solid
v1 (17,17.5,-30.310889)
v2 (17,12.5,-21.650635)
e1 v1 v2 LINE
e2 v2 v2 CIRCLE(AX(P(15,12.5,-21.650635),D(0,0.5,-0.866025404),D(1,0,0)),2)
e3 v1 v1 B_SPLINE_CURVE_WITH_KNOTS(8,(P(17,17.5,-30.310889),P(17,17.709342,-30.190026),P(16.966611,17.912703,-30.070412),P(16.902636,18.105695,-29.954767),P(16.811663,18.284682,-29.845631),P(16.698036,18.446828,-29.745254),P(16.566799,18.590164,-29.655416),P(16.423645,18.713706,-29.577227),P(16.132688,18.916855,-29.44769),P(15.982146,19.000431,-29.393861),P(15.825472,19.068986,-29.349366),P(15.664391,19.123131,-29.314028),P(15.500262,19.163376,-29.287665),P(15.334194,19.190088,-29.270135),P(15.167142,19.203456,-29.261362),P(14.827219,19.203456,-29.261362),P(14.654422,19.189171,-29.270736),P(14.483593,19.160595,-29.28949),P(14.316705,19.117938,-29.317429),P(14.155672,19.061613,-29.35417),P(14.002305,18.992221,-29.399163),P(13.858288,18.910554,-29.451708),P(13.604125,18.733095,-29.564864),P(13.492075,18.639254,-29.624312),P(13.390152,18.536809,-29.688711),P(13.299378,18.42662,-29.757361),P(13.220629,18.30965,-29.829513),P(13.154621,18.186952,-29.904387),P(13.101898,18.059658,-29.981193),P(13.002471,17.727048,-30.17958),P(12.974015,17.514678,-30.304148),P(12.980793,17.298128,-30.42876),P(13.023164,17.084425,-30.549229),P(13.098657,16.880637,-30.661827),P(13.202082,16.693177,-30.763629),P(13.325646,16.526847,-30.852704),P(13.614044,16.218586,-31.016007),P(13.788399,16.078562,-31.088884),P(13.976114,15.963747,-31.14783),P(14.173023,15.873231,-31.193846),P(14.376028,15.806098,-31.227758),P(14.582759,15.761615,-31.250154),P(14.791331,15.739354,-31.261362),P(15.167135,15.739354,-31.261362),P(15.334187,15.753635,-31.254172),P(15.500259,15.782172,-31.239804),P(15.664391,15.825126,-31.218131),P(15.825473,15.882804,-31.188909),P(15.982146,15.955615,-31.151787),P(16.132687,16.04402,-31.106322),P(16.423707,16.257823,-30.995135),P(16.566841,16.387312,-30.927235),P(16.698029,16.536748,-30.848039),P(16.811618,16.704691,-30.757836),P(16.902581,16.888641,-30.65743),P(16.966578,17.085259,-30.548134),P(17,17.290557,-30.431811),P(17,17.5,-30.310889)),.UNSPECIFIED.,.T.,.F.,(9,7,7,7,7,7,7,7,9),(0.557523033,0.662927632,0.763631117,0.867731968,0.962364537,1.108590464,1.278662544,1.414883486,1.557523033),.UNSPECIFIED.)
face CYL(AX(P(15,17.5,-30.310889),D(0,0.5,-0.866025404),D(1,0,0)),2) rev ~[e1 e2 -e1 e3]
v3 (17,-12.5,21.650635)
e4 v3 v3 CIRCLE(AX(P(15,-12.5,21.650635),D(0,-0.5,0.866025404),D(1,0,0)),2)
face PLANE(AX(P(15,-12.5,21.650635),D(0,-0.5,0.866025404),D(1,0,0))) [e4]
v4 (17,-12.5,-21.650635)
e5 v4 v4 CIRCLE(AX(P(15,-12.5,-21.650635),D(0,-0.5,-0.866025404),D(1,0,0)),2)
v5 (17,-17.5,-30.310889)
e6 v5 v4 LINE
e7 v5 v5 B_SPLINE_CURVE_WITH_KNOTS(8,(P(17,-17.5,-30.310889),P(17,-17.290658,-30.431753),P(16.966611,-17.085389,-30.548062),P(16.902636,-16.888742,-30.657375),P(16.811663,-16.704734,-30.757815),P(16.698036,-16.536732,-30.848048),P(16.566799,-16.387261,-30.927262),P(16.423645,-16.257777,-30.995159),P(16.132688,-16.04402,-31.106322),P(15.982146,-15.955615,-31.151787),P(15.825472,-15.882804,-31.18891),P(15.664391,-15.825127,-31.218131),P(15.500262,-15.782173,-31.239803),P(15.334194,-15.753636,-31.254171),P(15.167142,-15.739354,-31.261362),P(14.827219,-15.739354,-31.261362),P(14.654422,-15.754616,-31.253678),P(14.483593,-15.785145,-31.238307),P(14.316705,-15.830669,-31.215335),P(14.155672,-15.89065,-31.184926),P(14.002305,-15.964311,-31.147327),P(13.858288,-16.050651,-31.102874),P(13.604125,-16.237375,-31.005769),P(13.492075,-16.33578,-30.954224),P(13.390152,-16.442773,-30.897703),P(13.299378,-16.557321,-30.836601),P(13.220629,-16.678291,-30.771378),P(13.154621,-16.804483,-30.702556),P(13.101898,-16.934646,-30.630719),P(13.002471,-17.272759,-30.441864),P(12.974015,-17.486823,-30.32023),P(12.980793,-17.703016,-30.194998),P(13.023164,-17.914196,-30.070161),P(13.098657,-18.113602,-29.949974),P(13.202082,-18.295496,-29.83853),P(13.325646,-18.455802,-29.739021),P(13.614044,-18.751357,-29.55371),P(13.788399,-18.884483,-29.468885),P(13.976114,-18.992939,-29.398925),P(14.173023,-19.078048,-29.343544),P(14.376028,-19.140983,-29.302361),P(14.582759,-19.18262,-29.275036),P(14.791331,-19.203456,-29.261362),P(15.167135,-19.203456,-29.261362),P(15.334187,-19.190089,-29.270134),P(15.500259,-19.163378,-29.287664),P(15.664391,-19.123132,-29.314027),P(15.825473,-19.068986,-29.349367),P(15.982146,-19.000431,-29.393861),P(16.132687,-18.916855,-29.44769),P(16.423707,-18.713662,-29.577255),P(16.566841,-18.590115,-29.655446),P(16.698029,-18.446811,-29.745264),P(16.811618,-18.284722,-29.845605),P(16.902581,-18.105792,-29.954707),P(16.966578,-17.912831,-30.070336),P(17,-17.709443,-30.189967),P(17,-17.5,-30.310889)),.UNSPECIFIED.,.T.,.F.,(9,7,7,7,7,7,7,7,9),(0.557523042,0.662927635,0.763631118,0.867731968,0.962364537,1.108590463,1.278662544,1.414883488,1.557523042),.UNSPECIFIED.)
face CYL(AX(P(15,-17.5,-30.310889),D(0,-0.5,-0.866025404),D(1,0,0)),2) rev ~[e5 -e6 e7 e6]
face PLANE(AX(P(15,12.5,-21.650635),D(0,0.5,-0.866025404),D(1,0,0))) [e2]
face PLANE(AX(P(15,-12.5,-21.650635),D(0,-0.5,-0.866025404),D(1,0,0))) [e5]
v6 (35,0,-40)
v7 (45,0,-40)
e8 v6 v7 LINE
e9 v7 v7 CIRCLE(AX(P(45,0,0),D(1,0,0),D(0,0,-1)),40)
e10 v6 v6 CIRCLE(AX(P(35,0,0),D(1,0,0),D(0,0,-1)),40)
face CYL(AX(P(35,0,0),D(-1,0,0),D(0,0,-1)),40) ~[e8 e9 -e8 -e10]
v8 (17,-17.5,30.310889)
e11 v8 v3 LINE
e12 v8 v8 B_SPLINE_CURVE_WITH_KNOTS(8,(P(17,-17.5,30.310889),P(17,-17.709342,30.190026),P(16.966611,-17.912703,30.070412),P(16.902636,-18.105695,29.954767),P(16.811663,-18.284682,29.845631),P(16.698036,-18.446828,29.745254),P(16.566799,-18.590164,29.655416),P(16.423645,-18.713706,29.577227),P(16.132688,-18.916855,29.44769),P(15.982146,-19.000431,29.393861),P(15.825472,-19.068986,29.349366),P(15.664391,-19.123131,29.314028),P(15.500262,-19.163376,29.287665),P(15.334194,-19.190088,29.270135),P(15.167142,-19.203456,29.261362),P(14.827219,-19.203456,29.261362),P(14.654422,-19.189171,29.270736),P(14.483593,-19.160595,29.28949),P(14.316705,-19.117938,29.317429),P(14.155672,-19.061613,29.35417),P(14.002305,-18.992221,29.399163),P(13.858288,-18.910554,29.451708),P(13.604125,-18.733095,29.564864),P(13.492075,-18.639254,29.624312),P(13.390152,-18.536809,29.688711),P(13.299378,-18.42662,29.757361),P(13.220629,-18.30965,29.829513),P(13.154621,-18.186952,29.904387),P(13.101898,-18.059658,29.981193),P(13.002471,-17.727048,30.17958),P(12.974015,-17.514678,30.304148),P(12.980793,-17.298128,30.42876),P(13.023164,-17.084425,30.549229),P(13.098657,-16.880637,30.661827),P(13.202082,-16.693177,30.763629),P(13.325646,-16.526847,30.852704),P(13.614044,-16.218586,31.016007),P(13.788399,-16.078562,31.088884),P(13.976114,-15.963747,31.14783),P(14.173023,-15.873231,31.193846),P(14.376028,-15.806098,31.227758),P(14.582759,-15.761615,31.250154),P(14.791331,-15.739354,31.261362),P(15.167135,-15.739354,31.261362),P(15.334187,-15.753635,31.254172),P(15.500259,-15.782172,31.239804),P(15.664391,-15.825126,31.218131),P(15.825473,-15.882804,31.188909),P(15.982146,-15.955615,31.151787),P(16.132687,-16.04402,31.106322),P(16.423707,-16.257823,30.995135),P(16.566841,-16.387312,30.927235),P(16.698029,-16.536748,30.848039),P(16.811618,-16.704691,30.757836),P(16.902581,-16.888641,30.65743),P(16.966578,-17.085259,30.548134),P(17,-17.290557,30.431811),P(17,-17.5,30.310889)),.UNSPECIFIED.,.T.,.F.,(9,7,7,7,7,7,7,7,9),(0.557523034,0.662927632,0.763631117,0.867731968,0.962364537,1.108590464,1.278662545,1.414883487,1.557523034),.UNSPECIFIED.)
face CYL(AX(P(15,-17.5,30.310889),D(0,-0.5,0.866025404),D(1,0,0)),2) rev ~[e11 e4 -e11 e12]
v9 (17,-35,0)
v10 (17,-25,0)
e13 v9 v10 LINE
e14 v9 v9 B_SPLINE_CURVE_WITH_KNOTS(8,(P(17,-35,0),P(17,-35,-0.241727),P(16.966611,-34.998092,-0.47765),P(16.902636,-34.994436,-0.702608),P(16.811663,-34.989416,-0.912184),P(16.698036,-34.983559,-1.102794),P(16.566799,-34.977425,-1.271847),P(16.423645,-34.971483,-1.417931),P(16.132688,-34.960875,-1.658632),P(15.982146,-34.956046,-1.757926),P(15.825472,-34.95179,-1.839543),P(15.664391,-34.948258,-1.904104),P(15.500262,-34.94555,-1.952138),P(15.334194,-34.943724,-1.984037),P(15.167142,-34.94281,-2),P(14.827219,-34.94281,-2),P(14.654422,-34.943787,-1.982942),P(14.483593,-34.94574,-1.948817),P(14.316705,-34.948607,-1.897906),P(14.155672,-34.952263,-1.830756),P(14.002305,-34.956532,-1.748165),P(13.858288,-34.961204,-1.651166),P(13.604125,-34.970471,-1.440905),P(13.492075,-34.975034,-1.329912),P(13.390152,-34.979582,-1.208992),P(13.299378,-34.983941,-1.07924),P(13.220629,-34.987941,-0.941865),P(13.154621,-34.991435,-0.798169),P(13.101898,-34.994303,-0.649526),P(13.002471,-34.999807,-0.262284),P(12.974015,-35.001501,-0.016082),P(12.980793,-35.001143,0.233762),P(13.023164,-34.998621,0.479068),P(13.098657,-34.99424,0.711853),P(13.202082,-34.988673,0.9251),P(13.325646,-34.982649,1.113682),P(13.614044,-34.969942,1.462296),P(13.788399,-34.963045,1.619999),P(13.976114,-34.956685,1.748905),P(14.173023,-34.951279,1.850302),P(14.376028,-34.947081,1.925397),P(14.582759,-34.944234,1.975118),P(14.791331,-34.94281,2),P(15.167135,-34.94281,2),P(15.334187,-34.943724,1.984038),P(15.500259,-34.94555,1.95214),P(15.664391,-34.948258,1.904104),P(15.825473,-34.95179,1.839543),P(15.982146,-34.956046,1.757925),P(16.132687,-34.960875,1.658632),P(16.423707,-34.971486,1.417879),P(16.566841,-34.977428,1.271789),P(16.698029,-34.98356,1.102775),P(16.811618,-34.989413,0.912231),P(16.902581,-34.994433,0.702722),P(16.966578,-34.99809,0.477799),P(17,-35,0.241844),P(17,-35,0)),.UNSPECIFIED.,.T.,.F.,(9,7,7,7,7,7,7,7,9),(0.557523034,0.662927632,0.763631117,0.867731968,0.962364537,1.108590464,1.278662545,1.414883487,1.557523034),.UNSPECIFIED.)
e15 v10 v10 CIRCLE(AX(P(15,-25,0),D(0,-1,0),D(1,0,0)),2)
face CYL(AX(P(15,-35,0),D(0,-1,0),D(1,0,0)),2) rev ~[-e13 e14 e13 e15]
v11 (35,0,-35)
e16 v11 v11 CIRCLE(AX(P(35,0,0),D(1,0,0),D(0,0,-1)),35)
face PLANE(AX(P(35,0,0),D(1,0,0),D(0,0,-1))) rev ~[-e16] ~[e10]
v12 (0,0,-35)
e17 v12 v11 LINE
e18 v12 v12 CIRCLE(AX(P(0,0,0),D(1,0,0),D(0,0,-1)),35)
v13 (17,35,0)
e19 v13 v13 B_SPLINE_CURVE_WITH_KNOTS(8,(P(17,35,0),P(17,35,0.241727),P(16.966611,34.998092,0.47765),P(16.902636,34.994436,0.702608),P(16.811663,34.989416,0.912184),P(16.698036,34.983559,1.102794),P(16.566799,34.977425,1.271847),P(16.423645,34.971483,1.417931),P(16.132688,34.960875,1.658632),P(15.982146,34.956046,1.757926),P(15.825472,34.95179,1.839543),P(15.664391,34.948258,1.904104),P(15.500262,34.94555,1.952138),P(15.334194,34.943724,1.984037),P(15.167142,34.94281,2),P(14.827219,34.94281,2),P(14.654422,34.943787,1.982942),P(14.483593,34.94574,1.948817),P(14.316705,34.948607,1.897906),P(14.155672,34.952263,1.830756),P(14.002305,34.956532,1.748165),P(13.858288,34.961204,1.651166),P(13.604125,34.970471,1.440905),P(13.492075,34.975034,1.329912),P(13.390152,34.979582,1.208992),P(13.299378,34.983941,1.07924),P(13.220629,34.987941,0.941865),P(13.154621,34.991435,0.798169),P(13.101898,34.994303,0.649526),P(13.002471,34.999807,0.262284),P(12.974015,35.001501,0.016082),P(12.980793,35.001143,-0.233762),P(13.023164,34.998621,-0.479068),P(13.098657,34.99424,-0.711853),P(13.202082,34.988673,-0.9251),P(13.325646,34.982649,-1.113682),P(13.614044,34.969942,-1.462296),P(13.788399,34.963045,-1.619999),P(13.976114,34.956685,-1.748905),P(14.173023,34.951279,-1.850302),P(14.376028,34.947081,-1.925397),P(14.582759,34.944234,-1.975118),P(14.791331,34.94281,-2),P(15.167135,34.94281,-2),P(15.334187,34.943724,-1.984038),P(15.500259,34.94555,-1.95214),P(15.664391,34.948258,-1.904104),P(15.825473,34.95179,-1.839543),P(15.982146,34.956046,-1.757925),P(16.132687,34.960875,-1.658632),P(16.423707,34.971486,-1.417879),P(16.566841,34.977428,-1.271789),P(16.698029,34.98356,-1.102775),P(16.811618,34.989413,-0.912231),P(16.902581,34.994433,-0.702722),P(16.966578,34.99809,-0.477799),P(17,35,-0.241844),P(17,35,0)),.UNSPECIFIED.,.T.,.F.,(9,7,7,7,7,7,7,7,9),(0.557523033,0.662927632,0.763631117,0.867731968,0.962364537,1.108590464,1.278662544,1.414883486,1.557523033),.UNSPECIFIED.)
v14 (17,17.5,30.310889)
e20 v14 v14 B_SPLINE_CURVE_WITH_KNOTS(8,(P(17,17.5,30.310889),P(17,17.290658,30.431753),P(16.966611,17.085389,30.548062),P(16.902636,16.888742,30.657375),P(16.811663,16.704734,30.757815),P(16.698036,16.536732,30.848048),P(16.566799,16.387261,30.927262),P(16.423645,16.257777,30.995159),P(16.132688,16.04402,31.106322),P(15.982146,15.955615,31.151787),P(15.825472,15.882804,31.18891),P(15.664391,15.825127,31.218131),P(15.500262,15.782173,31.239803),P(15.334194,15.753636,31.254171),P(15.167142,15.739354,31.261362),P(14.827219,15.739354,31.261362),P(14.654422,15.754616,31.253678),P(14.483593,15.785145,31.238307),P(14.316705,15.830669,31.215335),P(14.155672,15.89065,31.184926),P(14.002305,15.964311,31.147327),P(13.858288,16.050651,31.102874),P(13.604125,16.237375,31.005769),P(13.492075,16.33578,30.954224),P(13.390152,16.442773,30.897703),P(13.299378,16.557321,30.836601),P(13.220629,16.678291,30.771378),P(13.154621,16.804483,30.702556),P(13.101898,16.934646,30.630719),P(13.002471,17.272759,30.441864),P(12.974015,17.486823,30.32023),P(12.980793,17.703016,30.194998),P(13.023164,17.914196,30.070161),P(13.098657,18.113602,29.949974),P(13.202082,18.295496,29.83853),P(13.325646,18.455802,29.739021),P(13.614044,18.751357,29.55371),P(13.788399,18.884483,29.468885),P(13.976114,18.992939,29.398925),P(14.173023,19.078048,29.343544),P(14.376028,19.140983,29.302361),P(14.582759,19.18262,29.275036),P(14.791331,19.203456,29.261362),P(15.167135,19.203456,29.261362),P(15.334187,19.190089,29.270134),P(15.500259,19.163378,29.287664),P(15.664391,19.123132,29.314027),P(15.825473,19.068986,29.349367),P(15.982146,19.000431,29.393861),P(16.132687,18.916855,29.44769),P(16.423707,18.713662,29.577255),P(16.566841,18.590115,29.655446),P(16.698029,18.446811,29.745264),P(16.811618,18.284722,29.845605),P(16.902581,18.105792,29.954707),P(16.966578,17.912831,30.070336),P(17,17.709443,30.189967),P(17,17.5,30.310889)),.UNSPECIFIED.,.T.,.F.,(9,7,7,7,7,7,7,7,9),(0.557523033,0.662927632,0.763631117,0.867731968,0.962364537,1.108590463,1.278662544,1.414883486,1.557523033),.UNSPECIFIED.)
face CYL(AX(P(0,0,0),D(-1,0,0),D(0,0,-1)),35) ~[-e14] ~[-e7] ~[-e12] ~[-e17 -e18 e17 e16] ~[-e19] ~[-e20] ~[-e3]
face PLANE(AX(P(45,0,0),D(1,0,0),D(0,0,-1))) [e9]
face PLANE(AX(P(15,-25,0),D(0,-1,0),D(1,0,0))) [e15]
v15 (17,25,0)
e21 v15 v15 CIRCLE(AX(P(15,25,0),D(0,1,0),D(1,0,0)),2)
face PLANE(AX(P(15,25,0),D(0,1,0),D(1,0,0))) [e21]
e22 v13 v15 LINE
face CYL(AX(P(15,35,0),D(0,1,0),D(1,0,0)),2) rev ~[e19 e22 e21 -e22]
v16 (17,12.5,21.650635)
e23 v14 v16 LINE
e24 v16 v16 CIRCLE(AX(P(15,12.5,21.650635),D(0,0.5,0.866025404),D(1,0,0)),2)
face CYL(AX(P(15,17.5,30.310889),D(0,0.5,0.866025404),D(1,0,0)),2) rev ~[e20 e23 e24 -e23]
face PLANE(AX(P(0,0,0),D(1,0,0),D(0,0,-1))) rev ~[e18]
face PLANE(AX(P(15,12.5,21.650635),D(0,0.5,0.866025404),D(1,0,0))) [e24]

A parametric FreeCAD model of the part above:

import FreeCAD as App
import Part
import Sketcher

doc = App.newDocument("Part")
body = doc.addObject("PartDesign::Body", "Body")

# Sketch on YZ plane
sketch1 = body.newObject("Sketcher::SketchObject", "Sketch")
sketch1.AttachmentSupport = (doc.getObject("YZ_Plane"), [""])
sketch1.MapMode = "FlatFace"
sketch1.addGeometry(Part.Circle(App.Vector(0, 0, 0), App.Vector(0, 0, 1), 35), False)
sketch1.addConstraint([
    Sketcher.Constraint("Coincident", 0, 3, -1, 1),
    Sketcher.Constraint("Diameter", 0, 70.0),
])
pad1 = body.newObject("PartDesign::Pad", "Pad")
pad1.Profile = sketch1
pad1.Length = 35

# Sketch on YZ plane
sketch2 = body.newObject("Sketcher::SketchObject", "Sketch001")
sketch2.AttachmentSupport = (doc.getObject("YZ_Plane"), [""])
sketch2.MapMode = "FlatFace"
sketch2.AttachmentOffset = App.Placement(App.Vector(0, 0, 35), App.Rotation())
sketch2.addGeometry(Part.Circle(App.Vector(0, 0, 0), App.Vector(0, 0, 1), 40), False)
sketch2.addConstraint([
    Sketcher.Constraint("Coincident", 0, 3, -1, 1),
    Sketcher.Constraint("Diameter", 0, 80.0),
])
pad2 = body.newObject("PartDesign::Pad", "Pad001")
pad2.Profile = sketch2
pad2.Length = 10

# Sketch on XZ plane
sketch3 = body.newObject("Sketcher::SketchObject", "Sketch002")
sketch3.AttachmentSupport = (doc.getObject("XZ_Plane"), [""])
sketch3.MapMode = "FlatFace"
sketch3.AttachmentOffset = App.Placement(App.Vector(0, 0, -35), App.Rotation())
sketch3.addGeometry(Part.Circle(App.Vector(15, 0, 0), App.Vector(0, 0, 1), 2), False)
sketch3.addConstraint([
    Sketcher.Constraint("PointOnObject", 0, 3, -1),
    Sketcher.Constraint("Diameter", 0, 4.0),
    Sketcher.Constraint("DistanceX", -1, 1, 0, 3, 15.0),
])
pocket1 = body.newObject("PartDesign::Pocket", "Pocket")
pocket1.Profile = sketch3
pocket1.Length = 10
pocket1.Reversed = True
doc.recompute()

polarpattern = body.newObject("PartDesign::PolarPattern", "PolarPattern")
polarpattern.Originals = [pocket1]
polarpattern.Axis = (doc.getObject("X_Axis"), [""])
polarpattern.Angle = 360
polarpattern.Occurrences = 6
body.Tip = polarpattern

doc.recompute()
